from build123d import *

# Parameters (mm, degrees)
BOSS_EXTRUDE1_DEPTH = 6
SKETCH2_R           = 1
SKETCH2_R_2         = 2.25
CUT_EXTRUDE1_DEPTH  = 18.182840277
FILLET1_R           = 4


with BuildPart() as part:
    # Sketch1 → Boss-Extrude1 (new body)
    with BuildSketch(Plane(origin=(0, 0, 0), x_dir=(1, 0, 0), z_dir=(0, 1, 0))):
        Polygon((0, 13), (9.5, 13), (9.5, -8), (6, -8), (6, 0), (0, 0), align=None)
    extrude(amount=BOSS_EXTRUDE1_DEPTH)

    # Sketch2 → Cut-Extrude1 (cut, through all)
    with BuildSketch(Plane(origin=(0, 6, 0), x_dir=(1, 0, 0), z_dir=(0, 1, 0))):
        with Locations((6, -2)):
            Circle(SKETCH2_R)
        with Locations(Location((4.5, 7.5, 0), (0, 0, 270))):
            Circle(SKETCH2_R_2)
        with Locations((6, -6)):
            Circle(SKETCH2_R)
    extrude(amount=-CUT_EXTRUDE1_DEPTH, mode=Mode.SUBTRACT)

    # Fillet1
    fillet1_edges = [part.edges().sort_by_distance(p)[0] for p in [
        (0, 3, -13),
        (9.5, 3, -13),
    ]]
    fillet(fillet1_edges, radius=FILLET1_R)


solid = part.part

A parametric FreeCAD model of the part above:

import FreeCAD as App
import Part
import Sketcher


def edges_at(feature, points):
    """Names of the edges that pass closest to the given points."""
    edges = feature.Shape.Edges
    near = lambda p: min(range(len(edges)), key=lambda i: edges[i].distToShape(Part.Vertex(*p))[0])
    return sorted({f"Edge{near(p) + 1}" for p in points})


def add_polygon(sketch, points):
    """Adds a closed chain of lines whose ends are joined by coincident constraints."""
    first, n = sketch.GeometryCount, len(points)
    for a, b in zip(points, points[1:] + points[:1]):
        sketch.addGeometry(Part.LineSegment(App.Vector(*a, 0), App.Vector(*b, 0)), False)
    for i in range(n):
        sketch.addConstraint(Sketcher.Constraint("Coincident", first + i, 2, first + (i + 1) % n, 1))

doc = App.newDocument("Part")
body = doc.addObject("PartDesign::Body", "Body")

# Sketch on XZ plane
sketch1 = body.newObject("Sketcher::SketchObject", "Sketch")
sketch1.AttachmentSupport = (doc.getObject("XZ_Plane"), [""])
sketch1.MapMode = "FlatFace"
add_polygon(sketch1, [(9.5, -13), (0, -13), (0, 0), (6, 0), (6, 8), (9.5, 8)])  # lines 0-5
sketch1.addConstraint([
    Sketcher.Constraint("Horizontal", 0),
    Sketcher.Constraint("Vertical", 1),
    Sketcher.Constraint("Horizontal", 2),
    Sketcher.Constraint("Vertical", 3),
    Sketcher.Constraint("Horizontal", 4),
    Sketcher.Constraint("Vertical", 5),
    Sketcher.Constraint("Coincident", 1, 2, -1, 1),
    Sketcher.Constraint("DistanceX", 2, 1, 2, 2, 6.0),
    Sketcher.Constraint("DistanceY", 1, 1, 1, 2, 13.0),
    Sketcher.Constraint("DistanceY", 3, 1, 3, 2, 8.0),
    Sketcher.Constraint("DistanceX", 0, 2, 0, 1, 9.5),
])
pad1 = body.newObject("PartDesign::Pad", "Pad")
pad1.Profile = sketch1
pad1.Length = 6
pad1.Reversed = True

# Sketch on XZ plane
sketch2 = body.newObject("Sketcher::SketchObject", "Sketch001")
sketch2.AttachmentSupport = (doc.getObject("XZ_Plane"), [""])
sketch2.MapMode = "FlatFace"
sketch2.AttachmentOffset = App.Placement(App.Vector(0, 0, -6), App.Rotation())
sketch2.addGeometry([
    Part.Circle(App.Vector(6, 2, 0), App.Vector(0, 0, 1), 1),
    Part.Circle(App.Vector(4.5, -7.5, 0), App.Vector(0, 0, 1), 2.25),
    Part.Circle(App.Vector(6, 6, 0), App.Vector(0, 0, 1), 1),
], False)
sketch2.addConstraint([
    Sketcher.Constraint("Equal", 0, 2),
    Sketcher.Constraint("Vertical", 0, 3, 2, 3),
    Sketcher.Constraint("Diameter", 0, 2.0),
    Sketcher.Constraint("Diameter", 1, 4.5),
    Sketcher.Constraint("DistanceX", -1, 1, 0, 3, 6.0),
    Sketcher.Constraint("DistanceY", -1, 1, 0, 3, 2.0),
    Sketcher.Constraint("DistanceY", -1, 1, 2, 3, 6.0),
    Sketcher.Constraint("DistanceX", -1, 1, 1, 3, 4.5),
    Sketcher.Constraint("DistanceY", 1, 3, -1, 1, 7.5),
])
pocket1 = body.newObject("PartDesign::Pocket", "Pocket")
pocket1.Profile = sketch2
pocket1.Type = "ThroughAll"
pocket1.Reversed = True
doc.recompute()

fillet = body.newObject("PartDesign::Fillet", "Fillet")
fillet.Base = (pocket1, edges_at(pocket1, [(0, 3, -13), (9.5, 3, -13)]))
fillet.Radius = 4

doc.recompute()
